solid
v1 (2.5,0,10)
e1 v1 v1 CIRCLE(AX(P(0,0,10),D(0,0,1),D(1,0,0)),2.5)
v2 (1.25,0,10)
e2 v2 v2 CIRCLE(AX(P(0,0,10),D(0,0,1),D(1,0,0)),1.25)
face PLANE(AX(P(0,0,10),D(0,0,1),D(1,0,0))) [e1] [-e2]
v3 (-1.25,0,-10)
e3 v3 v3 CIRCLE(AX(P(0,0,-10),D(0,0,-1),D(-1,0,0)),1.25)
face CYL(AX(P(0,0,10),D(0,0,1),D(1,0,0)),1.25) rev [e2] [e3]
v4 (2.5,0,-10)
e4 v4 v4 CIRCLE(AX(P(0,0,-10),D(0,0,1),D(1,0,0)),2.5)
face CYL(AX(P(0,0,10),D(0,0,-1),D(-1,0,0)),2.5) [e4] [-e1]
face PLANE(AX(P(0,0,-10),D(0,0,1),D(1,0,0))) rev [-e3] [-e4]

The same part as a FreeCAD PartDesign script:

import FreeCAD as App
import Part
import Sketcher
Q = App.Units.Quantity

doc = App.newDocument("Part")
body = doc.addObject("PartDesign::Body", "Body")

sketch1 = body.newObject("Sketcher::SketchObject", "Sketch")
sketch1.AttachmentSupport = (doc.getObject("XY_Plane"), [""])
sketch1.MapMode = "FlatFace"
sketch1.addGeometry(Part.Circle(App.Vector(0, 0, 0), App.Vector(0, 0, 1), 2.5), False)
sketch1.addConstraint([
    Sketcher.Constraint("Coincident", 0, 3, -1, 1),
    Sketcher.Constraint("Diameter", 0, Q("5 mm")),
])
pad1 = body.newObject("PartDesign::Pad", "Pad")
pad1.Profile = sketch1
pad1.Length = 20
pad1.Midplane = True

sketch2 = body.newObject("Sketcher::SketchObject", "Sketch001")
sketch2.AttachmentSupport = (doc.getObject("XY_Plane"), [""])
sketch2.MapMode = "FlatFace"
sketch2.AttachmentOffset = App.Placement(App.Vector(0, 0, 10), App.Rotation())
sketch2.addGeometry(Part.Circle(App.Vector(0, 0, 0), App.Vector(0, 0, 1), 1.2), False)
sketch2.addConstraint([
    Sketcher.Constraint("Coincident", 0, 3, -1, 1),
    Sketcher.Constraint("Diameter", 0, Q("2.5 mm")),
])
doc.recompute()
hole = body.newObject("PartDesign::Hole", "Hole")
hole.Profile = sketch2
hole.ThreadType = "None"
hole.Diameter = 2.5
hole.DepthType = "Dimension"
hole.Depth = 10
hole.DrillPoint = "Flat"
doc.recompute()

mirrored = body.newObject("PartDesign::Mirrored", "Mirrored")
mirrored.Originals = [hole]
mirrored.MirrorPlane = (doc.getObject("XY_Plane"), [""])
body.Tip = mirrored

doc.recompute()
